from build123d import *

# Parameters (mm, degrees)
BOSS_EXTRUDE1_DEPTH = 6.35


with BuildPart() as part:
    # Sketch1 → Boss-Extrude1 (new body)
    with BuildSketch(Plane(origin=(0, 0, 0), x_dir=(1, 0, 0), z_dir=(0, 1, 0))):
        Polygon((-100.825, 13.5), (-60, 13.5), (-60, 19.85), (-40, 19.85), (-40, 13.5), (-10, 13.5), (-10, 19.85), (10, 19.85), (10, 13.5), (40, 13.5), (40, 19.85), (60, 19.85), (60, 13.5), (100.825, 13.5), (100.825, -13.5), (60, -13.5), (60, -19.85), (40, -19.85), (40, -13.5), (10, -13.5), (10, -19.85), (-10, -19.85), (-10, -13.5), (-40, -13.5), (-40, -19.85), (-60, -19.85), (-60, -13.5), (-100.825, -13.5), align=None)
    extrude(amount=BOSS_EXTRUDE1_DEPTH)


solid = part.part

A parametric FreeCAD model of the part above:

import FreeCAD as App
import Part
import Sketcher
from FreeCAD import Vector
Q = App.Units.Quantity


def add_polygon(sketch, points):
    """Adds a closed chain of lines whose ends are joined by coincident constraints."""
    first, n = sketch.GeometryCount, len(points)
    for a, b in zip(points, points[1:] + points[:1]):
        sketch.addGeometry(Part.LineSegment(App.Vector(*a, 0), App.Vector(*b, 0)), False)
    for i in range(n):
        sketch.addConstraint(Sketcher.Constraint("Coincident", first + i, 2, first + (i + 1) % n, 1))

doc = App.newDocument("Part")
body = doc.addObject("PartDesign::Body", "Body")

sketch1 = body.newObject("Sketcher::SketchObject", "Sketch")
sketch1.AttachmentSupport = (doc.getObject("XZ_Plane"), [""])
sketch1.MapMode = "FlatFace"
add_polygon(sketch1, [(-60, -13.5), (-100.825, -13.5), (-100.825, 13.5), (-60, 13.5), (-60, 19.85), (-40, 19.85), (-40, 13.5), (-10, 13.5), (-10, 19.85), (10, 19.85), (10, 13.5), (40, 13.5), (40, 19.85), (60, 19.85), (60, 13.5), (100.825, 13.5), (100.825, -13.5), (60, -13.5), (60, -19.85), (40, -19.85), (40, -13.5), (10, -13.5), (10, -19.85), (-10, -19.85), (-10, -13.5), (-40, -13.5), (-40, -19.85), (-60, -19.85)])
sketch1.addConstraint([
    Sketcher.Constraint("Horizontal", 0),
    Sketcher.Constraint("Vertical", 1),
    Sketcher.Constraint("Horizontal", 2),
    Sketcher.Constraint("Vertical", 3),
    Sketcher.Constraint("Horizontal", 4),
    Sketcher.Constraint("Vertical", 5),
    Sketcher.Constraint("Horizontal", 6),
    Sketcher.Constraint("Vertical", 7),
    Sketcher.Constraint("Horizontal", 8),
    Sketcher.Constraint("Vertical", 9),
    Sketcher.Constraint("Horizontal", 10),
    Sketcher.Constraint("Vertical", 11),
    Sketcher.Constraint("Horizontal", 12),
    Sketcher.Constraint("Vertical", 13),
    Sketcher.Constraint("Horizontal", 14),
    Sketcher.Constraint("Vertical", 15),
    Sketcher.Constraint("Horizontal", 16),
    Sketcher.Constraint("Vertical", 17),
    Sketcher.Constraint("Horizontal", 18),
    Sketcher.Constraint("Vertical", 19),
    Sketcher.Constraint("Horizontal", 20),
    Sketcher.Constraint("Vertical", 21),
    Sketcher.Constraint("Horizontal", 22),
    Sketcher.Constraint("Vertical", 23),
    Sketcher.Constraint("Horizontal", 24),
    Sketcher.Constraint("Vertical", 25),
    Sketcher.Constraint("Horizontal", 26),
    Sketcher.Constraint("Vertical", 27),
    Sketcher.Constraint("Symmetric", 0, 2, 14, 2, -1, 1),
    Sketcher.Constraint("Symmetric", 2, 2, 16, 2, -1, 1),
    Sketcher.Constraint("Symmetric", 4, 2, 18, 2, -1, 1),
    Sketcher.Constraint("Symmetric", 6, 2, 20, 2, -1, 1),
    Sketcher.Constraint("Symmetric", 8, 2, 22, 2, -1, 1),
    Sketcher.Constraint("Symmetric", 10, 2, 24, 2, -1, 1),
    Sketcher.Constraint("Symmetric", 12, 2, 26, 2, -1, 1),
    Sketcher.Constraint("Symmetric", 6, 2, 9, 2, -2),
    Sketcher.Constraint("Symmetric", 4, 2, 11, 2, -2),
    Sketcher.Constraint("Symmetric", 2, 2, 13, 2, -2),
    Sketcher.Constraint("Horizontal", 2, 2, 5, 2),
    Sketcher.Constraint("Horizontal", 4, 2, 7, 2),
    Sketcher.Constraint("Equal", 4, 8),
    Sketcher.Constraint("DistanceX", 4, 1, 4, 2, Q("20 mm")),
    Sketcher.Constraint("DistanceX", 6, 1, 6, 2, Q("30 mm")),
    Sketcher.Constraint("DistanceY", 1, 1, 1, 2, Q("27 mm")),
    Sketcher.Constraint("DistanceY", 3, 1, 3, 2, Q("6.35 mm")),
    Sketcher.Constraint("DistanceX", 0, 2, 0, 1, Q("40.825 mm")),
])
pad1 = body.newObject("PartDesign::Pad", "Pad")
pad1.Profile = sketch1
pad1.Length = 6.35
pad1.Reversed = True

doc.recompute()
